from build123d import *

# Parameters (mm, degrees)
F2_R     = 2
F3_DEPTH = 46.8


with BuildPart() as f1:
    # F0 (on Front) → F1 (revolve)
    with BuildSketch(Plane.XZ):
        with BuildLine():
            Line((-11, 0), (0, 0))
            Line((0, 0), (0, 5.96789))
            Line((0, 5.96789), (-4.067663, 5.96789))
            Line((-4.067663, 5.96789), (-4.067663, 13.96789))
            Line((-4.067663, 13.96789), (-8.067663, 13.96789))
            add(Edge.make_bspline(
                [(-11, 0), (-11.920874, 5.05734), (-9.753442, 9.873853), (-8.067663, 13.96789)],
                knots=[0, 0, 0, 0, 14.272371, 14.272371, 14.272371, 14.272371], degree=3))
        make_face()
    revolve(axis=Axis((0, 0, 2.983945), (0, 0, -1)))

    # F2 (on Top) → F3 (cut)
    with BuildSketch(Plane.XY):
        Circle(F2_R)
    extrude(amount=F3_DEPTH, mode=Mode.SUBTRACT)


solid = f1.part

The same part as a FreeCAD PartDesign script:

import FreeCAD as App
import Part
import Sketcher
from FreeCAD import Vector

doc = App.newDocument("Part")
body = doc.addObject("PartDesign::Body", "Body")

# Sketch on XZ plane
sketch1 = body.newObject("Sketcher::SketchObject", "Sketch")
sketch1.AttachmentSupport = (doc.getObject("XZ_Plane"), [""])
sketch1.MapMode = "FlatFace"
sketch1.addGeometry([
    Part.LineSegment(Vector(-11, 0, 0), Vector(0, 0, 0)),  # 0
    Part.LineSegment(Vector(0, 0, 0), Vector(0, 5.96789, 0)),  # 1
    Part.LineSegment(Vector(0, 5.96789, 0), Vector(-4.067663, 5.96789, 0)),  # 2
    Part.LineSegment(Vector(-4.067663, 5.96789, 0), Vector(-4.067663, 13.96789, 0)),  # 3
    Part.LineSegment(Vector(-4.067663, 13.96789, 0), Vector(-8.067663, 13.96789, 0)),  # 4
    Part.BSplineCurve([Vector(-11, 0, 0), Vector(-11.920874, 5.05734, 0), Vector(-9.753442, 9.873853, 0), Vector(-8.067663, 13.96789, 0)], [4, 4], [0, 14.272371], False, 3, [1, 1, 1, 1], False),  # 5
], False)
sketch1.addConstraint([
    Sketcher.Constraint("Block", 5),
    Sketcher.Constraint("Coincident", 0, 2, 1, 1),
    Sketcher.Constraint("Coincident", 1, 2, 2, 1),
    Sketcher.Constraint("Coincident", 2, 2, 3, 1),
    Sketcher.Constraint("Coincident", 3, 2, 4, 1),
    Sketcher.Constraint("Coincident", 4, 2, 5, 2),
    Sketcher.Constraint("Coincident", 5, 1, 0, 1),
    Sketcher.Constraint("Horizontal", 0),
    Sketcher.Constraint("Vertical", 1),
    Sketcher.Constraint("Horizontal", 2),
    Sketcher.Constraint("Vertical", 3),
    Sketcher.Constraint("Horizontal", 4),
    Sketcher.Constraint("PointOnObject", 1, 2, -2),
    Sketcher.Constraint("DistanceX", 4, 2, 4, 1, 4.0),
    Sketcher.Constraint("DistanceY", 3, 1, 3, 2, 8.0),
])
revolution = body.newObject("PartDesign::Revolution", "Revolution")
revolution.Profile = sketch1
revolution.ReferenceAxis = (sketch1, ["V_Axis"])
revolution.Angle = 360

# Sketch on XY plane
sketch2 = body.newObject("Sketcher::SketchObject", "Sketch001")
sketch2.AttachmentSupport = (doc.getObject("XY_Plane"), [""])
sketch2.MapMode = "FlatFace"
sketch2.addGeometry(Part.Circle(Vector(0, 0, 0), Vector(0, 0, 1), 2), False)
sketch2.addConstraint([
    Sketcher.Constraint("Coincident", 0, 3, -1, 1),
    Sketcher.Constraint("Diameter", 0, 4.0),
])
pocket1 = body.newObject("PartDesign::Pocket", "Pocket")
pocket1.Profile = sketch2
pocket1.Length = 46.8
pocket1.Reversed = True

doc.recompute()
